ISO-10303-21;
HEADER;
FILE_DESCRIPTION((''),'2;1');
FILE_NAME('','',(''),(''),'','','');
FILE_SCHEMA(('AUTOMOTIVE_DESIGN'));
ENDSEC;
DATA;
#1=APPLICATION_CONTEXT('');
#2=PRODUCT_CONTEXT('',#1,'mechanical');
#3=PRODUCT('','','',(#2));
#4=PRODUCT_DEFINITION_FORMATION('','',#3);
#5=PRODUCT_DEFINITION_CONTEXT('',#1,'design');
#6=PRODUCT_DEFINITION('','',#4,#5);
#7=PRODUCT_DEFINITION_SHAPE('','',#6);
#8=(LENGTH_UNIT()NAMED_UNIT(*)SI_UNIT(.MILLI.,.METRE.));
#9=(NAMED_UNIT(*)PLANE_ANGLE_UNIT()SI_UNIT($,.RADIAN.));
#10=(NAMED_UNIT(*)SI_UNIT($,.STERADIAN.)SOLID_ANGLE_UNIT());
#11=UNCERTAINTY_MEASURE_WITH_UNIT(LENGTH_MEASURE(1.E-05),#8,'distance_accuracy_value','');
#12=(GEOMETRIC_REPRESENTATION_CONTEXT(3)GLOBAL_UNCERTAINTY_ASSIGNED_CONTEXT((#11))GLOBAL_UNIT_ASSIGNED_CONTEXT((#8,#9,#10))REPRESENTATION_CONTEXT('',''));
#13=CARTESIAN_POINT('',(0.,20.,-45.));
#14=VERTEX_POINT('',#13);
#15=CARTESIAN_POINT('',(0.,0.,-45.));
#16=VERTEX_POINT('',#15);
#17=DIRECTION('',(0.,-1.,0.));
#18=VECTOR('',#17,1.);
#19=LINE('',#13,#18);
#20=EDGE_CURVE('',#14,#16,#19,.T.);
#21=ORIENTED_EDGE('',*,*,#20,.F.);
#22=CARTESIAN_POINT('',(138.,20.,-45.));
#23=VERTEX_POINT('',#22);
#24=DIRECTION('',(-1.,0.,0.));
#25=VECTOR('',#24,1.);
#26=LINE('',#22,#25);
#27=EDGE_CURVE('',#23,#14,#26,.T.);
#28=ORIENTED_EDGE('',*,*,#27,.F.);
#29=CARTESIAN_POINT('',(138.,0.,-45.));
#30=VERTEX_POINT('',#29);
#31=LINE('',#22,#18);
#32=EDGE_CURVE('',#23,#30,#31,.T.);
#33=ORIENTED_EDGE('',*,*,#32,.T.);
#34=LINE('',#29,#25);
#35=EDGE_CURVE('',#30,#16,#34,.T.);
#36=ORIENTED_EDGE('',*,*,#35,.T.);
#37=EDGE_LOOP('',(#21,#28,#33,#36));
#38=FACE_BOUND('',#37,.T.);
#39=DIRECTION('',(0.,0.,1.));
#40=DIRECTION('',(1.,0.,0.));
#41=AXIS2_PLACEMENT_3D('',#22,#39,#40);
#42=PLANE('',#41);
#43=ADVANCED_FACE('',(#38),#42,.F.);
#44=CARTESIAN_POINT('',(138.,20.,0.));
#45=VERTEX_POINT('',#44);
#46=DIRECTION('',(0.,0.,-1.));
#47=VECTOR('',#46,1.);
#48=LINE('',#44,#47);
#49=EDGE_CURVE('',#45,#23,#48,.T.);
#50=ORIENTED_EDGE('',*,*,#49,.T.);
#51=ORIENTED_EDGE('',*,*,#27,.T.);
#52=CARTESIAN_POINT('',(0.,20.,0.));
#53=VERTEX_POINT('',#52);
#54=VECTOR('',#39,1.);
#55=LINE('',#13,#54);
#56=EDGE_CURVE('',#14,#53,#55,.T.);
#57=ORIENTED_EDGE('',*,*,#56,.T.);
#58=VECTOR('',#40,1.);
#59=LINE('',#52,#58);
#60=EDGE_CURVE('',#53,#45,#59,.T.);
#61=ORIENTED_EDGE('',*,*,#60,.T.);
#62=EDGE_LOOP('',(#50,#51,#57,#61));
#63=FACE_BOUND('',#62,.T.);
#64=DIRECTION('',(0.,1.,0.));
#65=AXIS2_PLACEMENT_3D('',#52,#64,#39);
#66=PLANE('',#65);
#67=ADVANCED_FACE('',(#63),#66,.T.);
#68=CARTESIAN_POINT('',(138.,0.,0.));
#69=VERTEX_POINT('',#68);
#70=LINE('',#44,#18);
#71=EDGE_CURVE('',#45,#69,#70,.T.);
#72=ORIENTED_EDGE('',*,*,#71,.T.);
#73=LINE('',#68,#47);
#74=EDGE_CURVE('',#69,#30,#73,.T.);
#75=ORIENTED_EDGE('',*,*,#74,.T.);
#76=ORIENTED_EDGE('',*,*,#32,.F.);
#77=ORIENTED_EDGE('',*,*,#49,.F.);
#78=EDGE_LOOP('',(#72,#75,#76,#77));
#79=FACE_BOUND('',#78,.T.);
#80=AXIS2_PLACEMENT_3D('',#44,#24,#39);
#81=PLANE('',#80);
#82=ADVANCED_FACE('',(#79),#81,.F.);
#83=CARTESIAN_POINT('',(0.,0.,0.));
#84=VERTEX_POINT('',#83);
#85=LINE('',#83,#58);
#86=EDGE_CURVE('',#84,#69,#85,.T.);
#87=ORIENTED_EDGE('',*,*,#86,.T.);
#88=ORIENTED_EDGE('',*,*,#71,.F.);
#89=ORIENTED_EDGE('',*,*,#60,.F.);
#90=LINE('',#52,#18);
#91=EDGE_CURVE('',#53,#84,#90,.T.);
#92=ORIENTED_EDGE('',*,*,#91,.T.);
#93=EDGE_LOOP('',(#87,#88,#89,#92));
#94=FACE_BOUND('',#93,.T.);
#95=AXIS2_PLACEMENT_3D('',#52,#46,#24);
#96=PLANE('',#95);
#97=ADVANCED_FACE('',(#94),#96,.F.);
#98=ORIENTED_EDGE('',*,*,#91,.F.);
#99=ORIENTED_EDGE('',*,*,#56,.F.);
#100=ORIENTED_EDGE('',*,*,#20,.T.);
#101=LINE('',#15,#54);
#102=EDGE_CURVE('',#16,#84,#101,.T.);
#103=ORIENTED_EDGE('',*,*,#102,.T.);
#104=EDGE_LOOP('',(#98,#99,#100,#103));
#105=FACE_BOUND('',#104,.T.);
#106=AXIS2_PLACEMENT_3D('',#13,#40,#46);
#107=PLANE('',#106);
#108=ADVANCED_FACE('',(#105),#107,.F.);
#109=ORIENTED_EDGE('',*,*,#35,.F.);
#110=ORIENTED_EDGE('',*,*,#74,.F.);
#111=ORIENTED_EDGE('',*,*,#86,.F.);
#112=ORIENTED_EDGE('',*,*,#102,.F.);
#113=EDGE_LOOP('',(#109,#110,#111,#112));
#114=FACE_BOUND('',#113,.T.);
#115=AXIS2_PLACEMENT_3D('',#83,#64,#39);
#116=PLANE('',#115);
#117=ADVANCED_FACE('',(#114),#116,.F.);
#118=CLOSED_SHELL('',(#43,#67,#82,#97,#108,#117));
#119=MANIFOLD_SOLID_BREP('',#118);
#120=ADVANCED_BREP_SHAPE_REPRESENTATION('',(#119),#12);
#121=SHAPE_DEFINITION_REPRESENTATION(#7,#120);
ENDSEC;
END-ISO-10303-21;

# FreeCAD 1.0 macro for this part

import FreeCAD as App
import Part
import Sketcher
Q = App.Units.Quantity

doc = App.newDocument("Part")
body = doc.addObject("PartDesign::Body", "Body")

# Sketch on XZ plane
sketch1 = body.newObject("Sketcher::SketchObject", "Sketch")
sketch1.AttachmentSupport = (doc.getObject("XZ_Plane"), [""])
sketch1.MapMode = "FlatFace"
sketch1.addGeometry(Part.LineSegment(App.Vector(0, -45, 0), App.Vector(0, 0, 0)), False)
sketch1.addGeometry(Part.LineSegment(App.Vector(0, 0, 0), App.Vector(138, 0, 0)), False)
sketch1.addGeometry(Part.LineSegment(App.Vector(138, 0, 0), App.Vector(138, -45, 0)), False)
sketch1.addGeometry(Part.LineSegment(App.Vector(138, -45, 0), App.Vector(0, -45, 0)), False)
sketch1.addConstraint(Sketcher.Constraint("Coincident", 0, 2, 1, 1))
sketch1.addConstraint(Sketcher.Constraint("Coincident", 1, 2, 2, 1))
sketch1.addConstraint(Sketcher.Constraint("Coincident", 2, 2, 3, 1))
sketch1.addConstraint(Sketcher.Constraint("Coincident", 3, 2, 0, 1))
sketch1.addConstraint(Sketcher.Constraint("Vertical", 0))
sketch1.addConstraint(Sketcher.Constraint("Horizontal", 1))
sketch1.addConstraint(Sketcher.Constraint("Vertical", 2))
sketch1.addConstraint(Sketcher.Constraint("Horizontal", 3))
sketch1.addConstraint(Sketcher.Constraint("Coincident", 0, 2, -1, 1))
sketch1.addConstraint(Sketcher.Constraint("DistanceX", 1, 1, 1, 2, Q("138 mm")))
sketch1.addConstraint(Sketcher.Constraint("DistanceY", 0, 1, 0, 2, Q("45 mm")))
pad1 = body.newObject("PartDesign::Pad", "Pad")
pad1.Profile = sketch1
pad1.Length = 20
pad1.Reversed = True

doc.recompute()
